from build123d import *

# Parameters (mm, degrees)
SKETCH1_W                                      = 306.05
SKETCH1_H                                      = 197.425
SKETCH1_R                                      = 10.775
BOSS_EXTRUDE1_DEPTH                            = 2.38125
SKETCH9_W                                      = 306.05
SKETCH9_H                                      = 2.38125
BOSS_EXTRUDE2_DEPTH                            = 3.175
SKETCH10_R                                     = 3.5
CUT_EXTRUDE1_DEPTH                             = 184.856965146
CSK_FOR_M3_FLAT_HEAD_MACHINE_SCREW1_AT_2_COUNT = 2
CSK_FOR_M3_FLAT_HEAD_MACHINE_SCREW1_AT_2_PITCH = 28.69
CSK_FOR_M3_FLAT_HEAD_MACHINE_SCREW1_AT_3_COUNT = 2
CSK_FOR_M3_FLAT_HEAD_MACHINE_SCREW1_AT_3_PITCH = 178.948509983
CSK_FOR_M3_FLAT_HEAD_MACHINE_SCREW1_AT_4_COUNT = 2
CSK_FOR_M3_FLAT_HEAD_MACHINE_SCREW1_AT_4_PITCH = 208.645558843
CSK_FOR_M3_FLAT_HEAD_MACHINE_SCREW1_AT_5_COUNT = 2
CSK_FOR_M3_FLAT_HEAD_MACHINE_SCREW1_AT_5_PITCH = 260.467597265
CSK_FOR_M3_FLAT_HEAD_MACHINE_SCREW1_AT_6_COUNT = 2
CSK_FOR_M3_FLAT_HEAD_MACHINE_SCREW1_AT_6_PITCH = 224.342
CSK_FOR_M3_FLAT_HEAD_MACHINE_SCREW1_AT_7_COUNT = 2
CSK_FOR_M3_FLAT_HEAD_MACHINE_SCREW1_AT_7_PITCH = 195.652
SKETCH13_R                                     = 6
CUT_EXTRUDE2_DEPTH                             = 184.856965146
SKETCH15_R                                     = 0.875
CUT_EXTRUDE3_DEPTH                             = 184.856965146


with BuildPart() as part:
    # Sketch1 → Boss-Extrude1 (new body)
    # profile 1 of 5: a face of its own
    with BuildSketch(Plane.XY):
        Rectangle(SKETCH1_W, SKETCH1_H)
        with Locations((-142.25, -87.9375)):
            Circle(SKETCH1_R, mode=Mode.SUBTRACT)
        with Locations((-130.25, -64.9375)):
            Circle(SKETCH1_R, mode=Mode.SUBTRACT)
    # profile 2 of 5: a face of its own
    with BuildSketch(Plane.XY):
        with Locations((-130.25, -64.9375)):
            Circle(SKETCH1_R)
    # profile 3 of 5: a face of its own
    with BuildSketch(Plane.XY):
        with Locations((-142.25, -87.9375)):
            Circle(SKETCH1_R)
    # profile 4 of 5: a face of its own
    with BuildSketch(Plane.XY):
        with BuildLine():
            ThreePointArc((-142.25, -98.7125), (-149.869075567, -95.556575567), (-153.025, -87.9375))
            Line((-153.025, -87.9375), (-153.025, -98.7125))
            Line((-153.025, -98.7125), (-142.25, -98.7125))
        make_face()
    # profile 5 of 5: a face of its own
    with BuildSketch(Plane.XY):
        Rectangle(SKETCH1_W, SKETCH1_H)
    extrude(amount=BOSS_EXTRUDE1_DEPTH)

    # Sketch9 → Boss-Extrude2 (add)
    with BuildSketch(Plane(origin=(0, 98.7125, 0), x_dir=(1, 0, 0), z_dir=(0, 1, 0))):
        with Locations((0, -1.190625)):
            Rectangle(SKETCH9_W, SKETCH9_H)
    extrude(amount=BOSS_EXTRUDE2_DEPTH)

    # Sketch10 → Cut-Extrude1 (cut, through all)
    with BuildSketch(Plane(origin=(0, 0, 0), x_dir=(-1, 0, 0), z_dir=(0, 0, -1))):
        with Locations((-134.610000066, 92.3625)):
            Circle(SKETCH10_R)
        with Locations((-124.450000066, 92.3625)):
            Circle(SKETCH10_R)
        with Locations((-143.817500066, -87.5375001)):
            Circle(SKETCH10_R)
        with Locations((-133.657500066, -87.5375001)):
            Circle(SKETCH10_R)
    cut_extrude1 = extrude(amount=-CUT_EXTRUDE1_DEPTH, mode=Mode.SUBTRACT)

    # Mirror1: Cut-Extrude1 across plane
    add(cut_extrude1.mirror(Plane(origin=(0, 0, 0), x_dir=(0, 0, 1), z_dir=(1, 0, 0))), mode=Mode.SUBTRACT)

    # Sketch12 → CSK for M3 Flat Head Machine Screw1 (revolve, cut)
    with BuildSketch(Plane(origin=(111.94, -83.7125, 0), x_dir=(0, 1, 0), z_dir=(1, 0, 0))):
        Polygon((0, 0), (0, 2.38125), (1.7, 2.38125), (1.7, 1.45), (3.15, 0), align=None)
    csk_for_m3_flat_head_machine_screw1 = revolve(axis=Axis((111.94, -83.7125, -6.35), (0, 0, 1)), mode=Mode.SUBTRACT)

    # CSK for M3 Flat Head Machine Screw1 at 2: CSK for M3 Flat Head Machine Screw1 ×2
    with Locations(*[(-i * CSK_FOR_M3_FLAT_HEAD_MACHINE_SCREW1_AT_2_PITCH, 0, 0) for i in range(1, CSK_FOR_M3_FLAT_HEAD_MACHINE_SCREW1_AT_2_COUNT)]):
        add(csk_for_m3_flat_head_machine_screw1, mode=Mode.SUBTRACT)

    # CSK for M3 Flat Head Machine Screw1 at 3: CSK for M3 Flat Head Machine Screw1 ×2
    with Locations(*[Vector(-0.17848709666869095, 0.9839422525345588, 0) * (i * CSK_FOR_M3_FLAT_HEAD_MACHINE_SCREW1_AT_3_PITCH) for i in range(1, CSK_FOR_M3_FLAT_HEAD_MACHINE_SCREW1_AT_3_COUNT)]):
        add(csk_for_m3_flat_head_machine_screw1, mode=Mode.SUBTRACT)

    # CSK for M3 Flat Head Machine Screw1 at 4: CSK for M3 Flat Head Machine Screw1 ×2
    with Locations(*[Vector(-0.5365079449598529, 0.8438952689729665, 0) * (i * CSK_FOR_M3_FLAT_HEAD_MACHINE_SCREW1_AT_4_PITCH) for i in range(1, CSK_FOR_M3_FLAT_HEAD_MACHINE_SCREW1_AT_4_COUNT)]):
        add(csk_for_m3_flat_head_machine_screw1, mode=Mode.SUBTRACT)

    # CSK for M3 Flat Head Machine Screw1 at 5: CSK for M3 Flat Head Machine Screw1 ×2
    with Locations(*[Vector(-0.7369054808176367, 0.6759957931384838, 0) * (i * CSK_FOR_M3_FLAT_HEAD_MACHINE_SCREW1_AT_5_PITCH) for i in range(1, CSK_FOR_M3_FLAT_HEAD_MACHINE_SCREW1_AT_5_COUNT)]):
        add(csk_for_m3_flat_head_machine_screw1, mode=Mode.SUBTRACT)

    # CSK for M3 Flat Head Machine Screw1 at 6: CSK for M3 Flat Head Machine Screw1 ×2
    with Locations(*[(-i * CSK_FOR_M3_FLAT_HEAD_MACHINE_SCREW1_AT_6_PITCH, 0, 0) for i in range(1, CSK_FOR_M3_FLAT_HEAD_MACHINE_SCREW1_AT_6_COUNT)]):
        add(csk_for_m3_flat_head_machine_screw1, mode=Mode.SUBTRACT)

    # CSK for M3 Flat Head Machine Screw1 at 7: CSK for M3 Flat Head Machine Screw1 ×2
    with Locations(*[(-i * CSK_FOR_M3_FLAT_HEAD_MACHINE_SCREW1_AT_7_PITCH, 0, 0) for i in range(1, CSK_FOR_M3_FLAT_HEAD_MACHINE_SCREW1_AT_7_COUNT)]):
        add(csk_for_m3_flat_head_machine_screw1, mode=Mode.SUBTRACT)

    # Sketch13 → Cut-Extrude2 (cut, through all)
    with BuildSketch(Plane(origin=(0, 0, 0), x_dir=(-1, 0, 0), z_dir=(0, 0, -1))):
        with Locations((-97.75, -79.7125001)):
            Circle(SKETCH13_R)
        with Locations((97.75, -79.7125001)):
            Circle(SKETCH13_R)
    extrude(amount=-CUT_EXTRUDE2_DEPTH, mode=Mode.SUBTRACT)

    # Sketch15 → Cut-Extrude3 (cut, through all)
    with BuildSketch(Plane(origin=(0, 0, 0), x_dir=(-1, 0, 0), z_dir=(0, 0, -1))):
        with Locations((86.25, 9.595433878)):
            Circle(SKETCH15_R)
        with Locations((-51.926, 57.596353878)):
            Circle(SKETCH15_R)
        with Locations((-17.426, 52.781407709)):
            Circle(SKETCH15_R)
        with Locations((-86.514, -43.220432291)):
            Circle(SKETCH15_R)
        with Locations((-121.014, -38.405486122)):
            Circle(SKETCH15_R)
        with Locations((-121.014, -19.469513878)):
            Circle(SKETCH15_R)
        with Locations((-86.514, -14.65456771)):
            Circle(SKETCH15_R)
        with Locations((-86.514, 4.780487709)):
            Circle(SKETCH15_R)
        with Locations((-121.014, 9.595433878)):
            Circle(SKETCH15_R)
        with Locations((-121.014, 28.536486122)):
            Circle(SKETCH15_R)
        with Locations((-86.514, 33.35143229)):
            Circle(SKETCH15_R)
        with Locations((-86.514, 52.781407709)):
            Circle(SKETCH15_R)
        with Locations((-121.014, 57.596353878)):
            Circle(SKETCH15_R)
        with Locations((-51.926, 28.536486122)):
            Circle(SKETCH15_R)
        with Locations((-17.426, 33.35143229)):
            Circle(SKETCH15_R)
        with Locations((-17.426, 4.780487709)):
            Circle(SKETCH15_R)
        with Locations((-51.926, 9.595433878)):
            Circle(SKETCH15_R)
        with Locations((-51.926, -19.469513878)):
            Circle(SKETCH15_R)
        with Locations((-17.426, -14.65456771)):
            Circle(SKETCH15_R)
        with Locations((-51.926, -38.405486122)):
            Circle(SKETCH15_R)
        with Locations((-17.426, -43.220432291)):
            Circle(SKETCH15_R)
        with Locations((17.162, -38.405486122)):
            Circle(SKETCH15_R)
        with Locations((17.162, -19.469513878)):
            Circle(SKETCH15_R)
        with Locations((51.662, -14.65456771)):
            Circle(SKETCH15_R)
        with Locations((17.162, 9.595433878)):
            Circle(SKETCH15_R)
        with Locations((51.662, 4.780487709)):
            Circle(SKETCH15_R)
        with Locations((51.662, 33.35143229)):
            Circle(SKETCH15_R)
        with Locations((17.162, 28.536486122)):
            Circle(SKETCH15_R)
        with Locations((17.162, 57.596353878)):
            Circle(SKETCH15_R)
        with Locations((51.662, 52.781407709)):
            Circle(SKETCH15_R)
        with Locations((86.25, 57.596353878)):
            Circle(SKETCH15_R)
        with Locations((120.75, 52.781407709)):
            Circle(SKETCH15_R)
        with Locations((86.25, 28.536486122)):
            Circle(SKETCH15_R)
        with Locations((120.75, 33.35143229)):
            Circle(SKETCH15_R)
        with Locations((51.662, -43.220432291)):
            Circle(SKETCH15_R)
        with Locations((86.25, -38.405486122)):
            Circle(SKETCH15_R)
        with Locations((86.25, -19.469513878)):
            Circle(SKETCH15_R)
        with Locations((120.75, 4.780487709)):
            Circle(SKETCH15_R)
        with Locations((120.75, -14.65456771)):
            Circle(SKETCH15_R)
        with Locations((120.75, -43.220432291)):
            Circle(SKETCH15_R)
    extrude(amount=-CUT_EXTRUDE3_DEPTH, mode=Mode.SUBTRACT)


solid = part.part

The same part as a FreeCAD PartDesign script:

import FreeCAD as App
import Part
import Sketcher

V = App.Vector
Q = App.Units.Quantity

doc = App.newDocument("Part")
body = doc.addObject("PartDesign::Body", "Body")

# Sketch on XY plane
sketch1 = doc.addObject("Sketcher::SketchObject", "Sketch")
body.addObject(sketch1)
sketch1.AttachmentSupport = (doc.XY_Plane, [""])
sketch1.MapMode = "FlatFace"
sketch1.addGeometry(Part.LineSegment(V(-153.025, -98.7125, 0), V(153.025, -98.7125, 0)), False)
sketch1.addGeometry(Part.LineSegment(V(153.025, -98.7125, 0), V(153.025, 98.7125, 0)), False)
sketch1.addGeometry(Part.LineSegment(V(153.025, 98.7125, 0), V(-153.025, 98.7125, 0)), False)
sketch1.addGeometry(Part.LineSegment(V(-153.025, 98.7125, 0), V(-153.025, -98.7125, 0)), False)
sketch1.addConstraint(Sketcher.Constraint("Coincident", 0, 2, 1, 1))
sketch1.addConstraint(Sketcher.Constraint("Coincident", 1, 2, 2, 1))
sketch1.addConstraint(Sketcher.Constraint("Coincident", 2, 2, 3, 1))
sketch1.addConstraint(Sketcher.Constraint("Coincident", 3, 2, 0, 1))
sketch1.addConstraint(Sketcher.Constraint("Horizontal", 0))
sketch1.addConstraint(Sketcher.Constraint("Vertical", 1))
sketch1.addConstraint(Sketcher.Constraint("Horizontal", 2))
sketch1.addConstraint(Sketcher.Constraint("Vertical", 3))
sketch1.addConstraint(Sketcher.Constraint("Symmetric", 0, 2, 2, 2, -1, 1))
sketch1.addConstraint(Sketcher.Constraint("DistanceX", 0, 1, 0, 2, Q("306.05 mm")))
sketch1.addConstraint(Sketcher.Constraint("DistanceY", 1, 1, 1, 2, Q("197.425 mm")))
pad1 = doc.addObject("PartDesign::Pad", "Pad")
body.addObject(pad1)
pad1.Profile = sketch1
pad1.Length = 2.38125

# Sketch on XZ plane
sketch2 = doc.addObject("Sketcher::SketchObject", "Sketch001")
body.addObject(sketch2)
sketch2.AttachmentSupport = (doc.XZ_Plane, [""])
sketch2.MapMode = "FlatFace"
sketch2.AttachmentOffset = App.Placement(V(0, 0, -98.7125), App.Rotation())
sketch2.addGeometry(Part.LineSegment(V(-153.025, 0, 0), V(-153.025, 2.38125, 0)), False)
sketch2.addGeometry(Part.LineSegment(V(-153.025, 2.38125, 0), V(153.025, 2.38125, 0)), False)
sketch2.addGeometry(Part.LineSegment(V(153.025, 2.38125, 0), V(153.025, 0, 0)), False)
sketch2.addGeometry(Part.LineSegment(V(153.025, 0, 0), V(-153.025, 0, 0)), False)
sketch2.addConstraint(Sketcher.Constraint("Coincident", 0, 2, 1, 1))
sketch2.addConstraint(Sketcher.Constraint("Coincident", 1, 2, 2, 1))
sketch2.addConstraint(Sketcher.Constraint("Coincident", 2, 2, 3, 1))
sketch2.addConstraint(Sketcher.Constraint("Coincident", 3, 2, 0, 1))
sketch2.addConstraint(Sketcher.Constraint("Vertical", 0))
sketch2.addConstraint(Sketcher.Constraint("Horizontal", 1))
sketch2.addConstraint(Sketcher.Constraint("Vertical", 2))
sketch2.addConstraint(Sketcher.Constraint("Horizontal", 3))
sketch2.addConstraint(Sketcher.Constraint("Symmetric", 2, 2, 3, 2, -1, 1))
sketch2.addConstraint(Sketcher.Constraint("DistanceX", 1, 1, 1, 2, Q("306.05 mm")))
sketch2.addConstraint(Sketcher.Constraint("DistanceY", 0, 1, 0, 2, Q("2.38125 mm")))
pad2 = doc.addObject("PartDesign::Pad", "Pad001")
body.addObject(pad2)
pad2.Profile = sketch2
pad2.Length = 3.175
pad2.Reversed = True

# Sketch on XY plane
sketch3 = doc.addObject("Sketcher::SketchObject", "Sketch002")
body.addObject(sketch3)
sketch3.AttachmentSupport = (doc.XY_Plane, [""])
sketch3.MapMode = "FlatFace"
sketch3.addGeometry(Part.Circle(V(134.61, 92.3625, 0), V(0, 0, 1), 3.5), False)
sketch3.addGeometry(Part.Circle(V(124.45, 92.3625, 0), V(0, 0, 1), 3.5), False)
sketch3.addGeometry(Part.Circle(V(143.8175, -87.5375, 0), V(0, 0, 1), 3.5), False)
sketch3.addGeometry(Part.Circle(V(133.6575, -87.5375, 0), V(0, 0, 1), 3.5), False)
sketch3.addConstraint(Sketcher.Constraint("Equal", 0, 1))
sketch3.addConstraint(Sketcher.Constraint("Equal", 1, 2))
sketch3.addConstraint(Sketcher.Constraint("Equal", 2, 3))
sketch3.addConstraint(Sketcher.Constraint("Horizontal", 0, 3, 1, 3))
sketch3.addConstraint(Sketcher.Constraint("Horizontal", 2, 3, 3, 3))
sketch3.addConstraint(Sketcher.Constraint("Diameter", 0, Q("7 mm")))
sketch3.addConstraint(Sketcher.Constraint("DistanceY", 2, 3, 0, 3, Q("179.9 mm")))
sketch3.addConstraint(Sketcher.Constraint("DistanceX", -1, 1, 0, 3, Q("134.61 mm")))
sketch3.addConstraint(Sketcher.Constraint("DistanceX", -1, 1, 1, 3, Q("124.45 mm")))
sketch3.addConstraint(Sketcher.Constraint("DistanceX", 3, 3, 2, 3, Q("10.16 mm")))
sketch3.addConstraint(Sketcher.Constraint("DistanceY", -1, 1, 0, 3, Q("92.3625 mm")))
sketch3.addConstraint(Sketcher.Constraint("DistanceX", -1, 1, 2, 3, Q("143.8175 mm")))
pocket1 = doc.addObject("PartDesign::Pocket", "Pocket")
body.addObject(pocket1)
pocket1.Profile = sketch3
pocket1.Type = "ThroughAll"
pocket1.Reversed = True
doc.recompute()

mirrored = doc.addObject("PartDesign::Mirrored", "Mirrored")
body.addObject(mirrored)
mirrored.Originals = [pocket1]
mirrored.MirrorPlane = (doc.YZ_Plane, [""])
body.Tip = mirrored

# Sketch on YZ plane
sketch4 = doc.addObject("Sketcher::SketchObject", "Sketch003")
body.addObject(sketch4)
sketch4.AttachmentSupport = (doc.YZ_Plane, [""])
sketch4.MapMode = "FlatFace"
sketch4.AttachmentOffset = App.Placement(V(0, 0, 111.94), App.Rotation())
sketch4.addGeometry(Part.LineSegment(V(-83.7125, 2.38125, 0), V(-83.7125, 0, 0)), False)
sketch4.addGeometry(Part.LineSegment(V(-83.7125, 0, 0), V(-80.5625, 0, 0)), False)
sketch4.addGeometry(Part.LineSegment(V(-80.5625, 0, 0), V(-82.0125, 1.45, 0)), False)
sketch4.addGeometry(Part.LineSegment(V(-82.0125, 1.45, 0), V(-82.0125, 2.38125, 0)), False)
sketch4.addGeometry(Part.LineSegment(V(-82.0125, 2.38125, 0), V(-83.7125, 2.38125, 0)), False)
sketch4.addGeometry(Part.LineSegment(V(-83.7125, 0, 0), V(-83.7125, 2.38125, 0)), True)  # axis
sketch4.addConstraint(Sketcher.Constraint("Coincident", 0, 2, 1, 1))
sketch4.addConstraint(Sketcher.Constraint("Coincident", 1, 2, 2, 1))
sketch4.addConstraint(Sketcher.Constraint("Coincident", 2, 2, 3, 1))
sketch4.addConstraint(Sketcher.Constraint("Coincident", 3, 2, 4, 1))
sketch4.addConstraint(Sketcher.Constraint("Coincident", 4, 2, 0, 1))
sketch4.addConstraint(Sketcher.Constraint("Vertical", 0))
sketch4.addConstraint(Sketcher.Constraint("Horizontal", 1))
sketch4.addConstraint(Sketcher.Constraint("Vertical", 3))
sketch4.addConstraint(Sketcher.Constraint("Horizontal", 4))
sketch4.addConstraint(Sketcher.Constraint("Vertical", 5))
sketch4.addConstraint(Sketcher.Constraint("Coincident", 5, 1, 0, 2))
sketch4.addConstraint(Sketcher.Constraint("PointOnObject", 0, 2, -1))
sketch4.addConstraint(Sketcher.Constraint("Horizontal", 3, 2, 5, 2))
sketch4.addConstraint(Sketcher.Constraint("Angle", 2, Q("135 deg")))
sketch4.addConstraint(Sketcher.Constraint("DistanceX", 4, 2, 4, 1, Q("1.7 mm")))
sketch4.addConstraint(Sketcher.Constraint("DistanceX", 1, 1, 1, 2, Q("3.15 mm")))
sketch4.addConstraint(Sketcher.Constraint("DistanceY", 0, 2, 0, 1, Q("2.38125 mm")))
sketch4.addConstraint(Sketcher.Constraint("DistanceX", 0, 2, -1, 1, Q("83.7125 mm")))
groove = doc.addObject("PartDesign::Groove", "Groove")
body.addObject(groove)
groove.Profile = sketch4
groove.ReferenceAxis = (sketch4, ["Axis0"])
groove.Angle = 360
doc.recompute()

linearpattern = doc.addObject("PartDesign::LinearPattern", "LinearPattern")
body.addObject(linearpattern)
linearpattern.Originals = [groove]
linearpattern.Direction = (doc.X_Axis, [""])
linearpattern.Mode = "offset"
linearpattern.Offset = 28.69
linearpattern.Occurrences = 2
linearpattern.Reversed = True
body.Tip = linearpattern
doc.recompute()

datumline = doc.addObject("PartDesign::Line", "DatumLine")
body.addObject(datumline)
datumline.Placement = App.Placement(V(0, 0, 0), App.Rotation(V(0, 0, 1), V(-0.178487097, 0.983942253, 0)))
linearpattern2 = doc.addObject("PartDesign::LinearPattern", "LinearPattern001")
body.addObject(linearpattern2)
linearpattern2.Originals = [groove]
linearpattern2.Direction = (datumline, [""])
linearpattern2.Mode = "offset"
linearpattern2.Offset = 178.94851
linearpattern2.Occurrences = 2
body.Tip = linearpattern2
doc.recompute()

datumline2 = doc.addObject("PartDesign::Line", "DatumLine001")
body.addObject(datumline2)
datumline2.Placement = App.Placement(V(0, 0, 0), App.Rotation(V(0, 0, 1), V(-0.536507945, 0.843895269, 0)))
linearpattern3 = doc.addObject("PartDesign::LinearPattern", "LinearPattern002")
body.addObject(linearpattern3)
linearpattern3.Originals = [groove]
linearpattern3.Direction = (datumline2, [""])
linearpattern3.Mode = "offset"
linearpattern3.Offset = 208.645559
linearpattern3.Occurrences = 2
body.Tip = linearpattern3
doc.recompute()

datumline3 = doc.addObject("PartDesign::Line", "DatumLine002")
body.addObject(datumline3)
datumline3.Placement = App.Placement(V(0, 0, 0), App.Rotation(V(0, 0, 1), V(-0.736905481, 0.675995793, 0)))
linearpattern4 = doc.addObject("PartDesign::LinearPattern", "LinearPattern003")
body.addObject(linearpattern4)
linearpattern4.Originals = [groove]
linearpattern4.Direction = (datumline3, [""])
linearpattern4.Mode = "offset"
linearpattern4.Offset = 260.467597
linearpattern4.Occurrences = 2
body.Tip = linearpattern4
doc.recompute()

linearpattern5 = doc.addObject("PartDesign::LinearPattern", "LinearPattern004")
body.addObject(linearpattern5)
linearpattern5.Originals = [groove]
linearpattern5.Direction = (doc.X_Axis, [""])
linearpattern5.Mode = "offset"
linearpattern5.Offset = 224.342
linearpattern5.Occurrences = 2
linearpattern5.Reversed = True
body.Tip = linearpattern5
doc.recompute()

linearpattern6 = doc.addObject("PartDesign::LinearPattern", "LinearPattern005")
body.addObject(linearpattern6)
linearpattern6.Originals = [groove]
linearpattern6.Direction = (doc.X_Axis, [""])
linearpattern6.Mode = "offset"
linearpattern6.Offset = 195.652
linearpattern6.Occurrences = 2
linearpattern6.Reversed = True
body.Tip = linearpattern6

# Sketch on XY plane
sketch5 = doc.addObject("Sketcher::SketchObject", "Sketch004")
body.addObject(sketch5)
sketch5.AttachmentSupport = (doc.XY_Plane, [""])
sketch5.MapMode = "FlatFace"
sketch5.addGeometry(Part.Circle(V(97.75, -79.7125, 0), V(0, 0, 1), 6), False)
sketch5.addGeometry(Part.Circle(V(-97.75, -79.7125, 0), V(0, 0, 1), 6), False)
sketch5.addConstraint(Sketcher.Constraint("Equal", 0, 1))
sketch5.addConstraint(Sketcher.Constraint("Symmetric", 0, 3, 1, 3, -2))
sketch5.addConstraint(Sketcher.Constraint("Diameter", 0, Q("12 mm")))
sketch5.addConstraint(Sketcher.Constraint("DistanceX", 1, 3, 0, 3, Q("195.5 mm")))
sketch5.addConstraint(Sketcher.Constraint("DistanceY", 0, 3, -1, 1, Q("79.7125 mm")))
pocket2 = doc.addObject("PartDesign::Pocket", "Pocket001")
body.addObject(pocket2)
pocket2.Profile = sketch5
pocket2.Type = "ThroughAll"
pocket2.Reversed = True

# Sketch on XY plane
sketch6 = doc.addObject("Sketcher::SketchObject", "Sketch005")
body.addObject(sketch6)
sketch6.AttachmentSupport = (doc.XY_Plane, [""])
sketch6.MapMode = "FlatFace"
sketch6.addGeometry(Part.Circle(V(-86.25, 9.595434, 0), V(0, 0, 1), 0.875), False)
sketch6.addGeometry(Part.Circle(V(51.926, 57.596354, 0), V(0, 0, 1), 0.875), False)
sketch6.addGeometry(Part.Circle(V(17.426, 52.781408, 0), V(0, 0, 1), 0.875), False)
sketch6.addGeometry(Part.Circle(V(86.514, -43.220432, 0), V(0, 0, 1), 0.875), False)
sketch6.addGeometry(Part.Circle(V(121.014, -38.405486, 0), V(0, 0, 1), 0.875), False)
sketch6.addGeometry(Part.Circle(V(121.014, -19.469514, 0), V(0, 0, 1), 0.875), False)
sketch6.addGeometry(Part.Circle(V(86.514, -14.654568, 0), V(0, 0, 1), 0.875), False)
sketch6.addGeometry(Part.Circle(V(86.514, 4.780488, 0), V(0, 0, 1), 0.875), False)
sketch6.addGeometry(Part.Circle(V(121.014, 9.595434, 0), V(0, 0, 1), 0.875), False)
sketch6.addGeometry(Part.Circle(V(121.014, 28.536486, 0), V(0, 0, 1), 0.875), False)
sketch6.addGeometry(Part.Circle(V(86.514, 33.351432, 0), V(0, 0, 1), 0.875), False)
sketch6.addGeometry(Part.Circle(V(86.514, 52.781408, 0), V(0, 0, 1), 0.875), False)
sketch6.addGeometry(Part.Circle(V(121.014, 57.596354, 0), V(0, 0, 1), 0.875), False)
sketch6.addGeometry(Part.Circle(V(51.926, 28.536486, 0), V(0, 0, 1), 0.875), False)
sketch6.addGeometry(Part.Circle(V(17.426, 33.351432, 0), V(0, 0, 1), 0.875), False)
sketch6.addGeometry(Part.Circle(V(17.426, 4.780488, 0), V(0, 0, 1), 0.875), False)
sketch6.addGeometry(Part.Circle(V(51.926, 9.595434, 0), V(0, 0, 1), 0.875), False)
sketch6.addGeometry(Part.Circle(V(51.926, -19.469514, 0), V(0, 0, 1), 0.875), False)
sketch6.addGeometry(Part.Circle(V(17.426, -14.654568, 0), V(0, 0, 1), 0.875), False)
sketch6.addGeometry(Part.Circle(V(51.926, -38.405486, 0), V(0, 0, 1), 0.875), False)
sketch6.addGeometry(Part.Circle(V(17.426, -43.220432, 0), V(0, 0, 1), 0.875), False)
sketch6.addGeometry(Part.Circle(V(-17.162, -38.405486, 0), V(0, 0, 1), 0.875), False)
sketch6.addGeometry(Part.Circle(V(-17.162, -19.469514, 0), V(0, 0, 1), 0.875), False)
sketch6.addGeometry(Part.Circle(V(-51.662, -14.654568, 0), V(0, 0, 1), 0.875), False)
sketch6.addGeometry(Part.Circle(V(-17.162, 9.595434, 0), V(0, 0, 1), 0.875), False)
sketch6.addGeometry(Part.Circle(V(-51.662, 4.780488, 0), V(0, 0, 1), 0.875), False)
sketch6.addGeometry(Part.Circle(V(-51.662, 33.351432, 0), V(0, 0, 1), 0.875), False)
sketch6.addGeometry(Part.Circle(V(-17.162, 28.536486, 0), V(0, 0, 1), 0.875), False)
sketch6.addGeometry(Part.Circle(V(-17.162, 57.596354, 0), V(0, 0, 1), 0.875), False)
sketch6.addGeometry(Part.Circle(V(-51.662, 52.781408, 0), V(0, 0, 1), 0.875), False)
sketch6.addGeometry(Part.Circle(V(-86.25, 57.596354, 0), V(0, 0, 1), 0.875), False)
sketch6.addGeometry(Part.Circle(V(-120.75, 52.781408, 0), V(0, 0, 1), 0.875), False)
sketch6.addGeometry(Part.Circle(V(-86.25, 28.536486, 0), V(0, 0, 1), 0.875), False)
sketch6.addGeometry(Part.Circle(V(-120.75, 33.351432, 0), V(0, 0, 1), 0.875), False)
sketch6.addGeometry(Part.Circle(V(-51.662, -43.220432, 0), V(0, 0, 1), 0.875), False)
sketch6.addGeometry(Part.Circle(V(-86.25, -38.405486, 0), V(0, 0, 1), 0.875), False)
sketch6.addGeometry(Part.Circle(V(-86.25, -19.469514, 0), V(0, 0, 1), 0.875), False)
sketch6.addGeometry(Part.Circle(V(-120.75, 4.780488, 0), V(0, 0, 1), 0.875), False)
sketch6.addGeometry(Part.Circle(V(-120.75, -14.654568, 0), V(0, 0, 1), 0.875), False)
sketch6.addGeometry(Part.Circle(V(-120.75, -43.220432, 0), V(0, 0, 1), 0.875), False)
sketch6.addConstraint(Sketcher.Constraint("Equal", 0, 1))
sketch6.addConstraint(Sketcher.Constraint("Equal", 1, 2))
sketch6.addConstraint(Sketcher.Constraint("Equal", 2, 3))
sketch6.addConstraint(Sketcher.Constraint("Equal", 3, 4))
sketch6.addConstraint(Sketcher.Constraint("Equal", 4, 5))
sketch6.addConstraint(Sketcher.Constraint("Equal", 5, 6))
sketch6.addConstraint(Sketcher.Constraint("Equal", 6, 7))
sketch6.addConstraint(Sketcher.Constraint("Equal", 7, 8))
sketch6.addConstraint(Sketcher.Constraint("Equal", 8, 9))
sketch6.addConstraint(Sketcher.Constraint("Equal", 9, 10))
sketch6.addConstraint(Sketcher.Constraint("Equal", 10, 11))
sketch6.addConstraint(Sketcher.Constraint("Equal", 11, 12))
sketch6.addConstraint(Sketcher.Constraint("Equal", 12, 13))
sketch6.addConstraint(Sketcher.Constraint("Equal", 13, 14))
sketch6.addConstraint(Sketcher.Constraint("Equal", 14, 15))
sketch6.addConstraint(Sketcher.Constraint("Equal", 15, 16))
sketch6.addConstraint(Sketcher.Constraint("Equal", 16, 17))
sketch6.addConstraint(Sketcher.Constraint("Equal", 17, 18))
sketch6.addConstraint(Sketcher.Constraint("Equal", 18, 19))
sketch6.addConstraint(Sketcher.Constraint("Equal", 19, 20))
sketch6.addConstraint(Sketcher.Constraint("Equal", 20, 21))
sketch6.addConstraint(Sketcher.Constraint("Equal", 21, 22))
sketch6.addConstraint(Sketcher.Constraint("Equal", 22, 23))
sketch6.addConstraint(Sketcher.Constraint("Equal", 23, 24))
sketch6.addConstraint(Sketcher.Constraint("Equal", 24, 25))
sketch6.addConstraint(Sketcher.Constraint("Equal", 25, 26))
sketch6.addConstraint(Sketcher.Constraint("Equal", 26, 27))
sketch6.addConstraint(Sketcher.Constraint("Equal", 27, 28))
sketch6.addConstraint(Sketcher.Constraint("Equal", 28, 29))
sketch6.addConstraint(Sketcher.Constraint("Equal", 29, 30))
sketch6.addConstraint(Sketcher.Constraint("Equal", 30, 31))
sketch6.addConstraint(Sketcher.Constraint("Equal", 31, 32))
sketch6.addConstraint(Sketcher.Constraint("Equal", 32, 33))
sketch6.addConstraint(Sketcher.Constraint("Equal", 33, 34))
sketch6.addConstraint(Sketcher.Constraint("Equal", 34, 35))
sketch6.addConstraint(Sketcher.Constraint("Equal", 35, 36))
sketch6.addConstraint(Sketcher.Constraint("Equal", 36, 37))
sketch6.addConstraint(Sketcher.Constraint("Equal", 37, 38))
sketch6.addConstraint(Sketcher.Constraint("Equal", 38, 39))
sketch6.addConstraint(Sketcher.Constraint("Horizontal", 0, 3, 8, 3))
sketch6.addConstraint(Sketcher.Constraint("Horizontal", 2, 3, 11, 3))
sketch6.addConstraint(Sketcher.Constraint("Horizontal", 1, 3, 12, 3))
sketch6.addConstraint(Sketcher.Constraint("Horizontal", 9, 3, 13, 3))
sketch6.addConstraint(Sketcher.Constraint("Horizontal", 10, 3, 14, 3))
sketch6.addConstraint(Sketcher.Constraint("Horizontal", 7, 3, 15, 3))
sketch6.addConstraint(Sketcher.Constraint("Horizontal", 8, 3, 16, 3))
sketch6.addConstraint(Sketcher.Constraint("Horizontal", 5, 3, 17, 3))
sketch6.addConstraint(Sketcher.Constraint("Horizontal", 6, 3, 18, 3))
sketch6.addConstraint(Sketcher.Constraint("Horizontal", 4, 3, 19, 3))
sketch6.addConstraint(Sketcher.Constraint("Horizontal", 3, 3, 20, 3))
sketch6.addConstraint(Sketcher.Constraint("Horizontal", 19, 3, 21, 3))
sketch6.addConstraint(Sketcher.Constraint("Horizontal", 17, 3, 22, 3))
sketch6.addConstraint(Sketcher.Constraint("Horizontal", 18, 3, 23, 3))
sketch6.addConstraint(Sketcher.Constraint("Horizontal", 16, 3, 24, 3))
sketch6.addConstraint(Sketcher.Constraint("Horizontal", 15, 3, 25, 3))
sketch6.addConstraint(Sketcher.Constraint("Horizontal", 14, 3, 26, 3))
sketch6.addConstraint(Sketcher.Constraint("Horizontal", 13, 3, 27, 3))
sketch6.addConstraint(Sketcher.Constraint("Horizontal", 12, 3, 28, 3))
sketch6.addConstraint(Sketcher.Constraint("Horizontal", 11, 3, 29, 3))
sketch6.addConstraint(Sketcher.Constraint("Horizontal", 28, 3, 30, 3))
sketch6.addConstraint(Sketcher.Constraint("Horizontal", 29, 3, 31, 3))
sketch6.addConstraint(Sketcher.Constraint("Horizontal", 27, 3, 32, 3))
sketch6.addConstraint(Sketcher.Constraint("Horizontal", 26, 3, 33, 3))
sketch6.addConstraint(Sketcher.Constraint("Horizontal", 20, 3, 34, 3))
sketch6.addConstraint(Sketcher.Constraint("Horizontal", 21, 3, 35, 3))
sketch6.addConstraint(Sketcher.Constraint("Horizontal", 22, 3, 36, 3))
sketch6.addConstraint(Sketcher.Constraint("Horizontal", 25, 3, 37, 3))
sketch6.addConstraint(Sketcher.Constraint("Horizontal", 23, 3, 38, 3))
sketch6.addConstraint(Sketcher.Constraint("Horizontal", 34, 3, 39, 3))
sketch6.addConstraint(Sketcher.Constraint("Vertical", 4, 3, 5, 3))
sketch6.addConstraint(Sketcher.Constraint("Vertical", 3, 3, 6, 3))
sketch6.addConstraint(Sketcher.Constraint("Vertical", 6, 3, 7, 3))
sketch6.addConstraint(Sketcher.Constraint("Vertical", 5, 3, 8, 3))
sketch6.addConstraint(Sketcher.Constraint("Vertical", 8, 3, 9, 3))
sketch6.addConstraint(Sketcher.Constraint("Vertical", 7, 3, 10, 3))
sketch6.addConstraint(Sketcher.Constraint("Vertical", 10, 3, 11, 3))
sketch6.addConstraint(Sketcher.Constraint("Vertical", 9, 3, 12, 3))
sketch6.addConstraint(Sketcher.Constraint("Vertical", 1, 3, 13, 3))
sketch6.addConstraint(Sketcher.Constraint("Vertical", 2, 3, 14, 3))
sketch6.addConstraint(Sketcher.Constraint("Vertical", 14, 3, 15, 3))
sketch6.addConstraint(Sketcher.Constraint("Vertical", 13, 3, 16, 3))
sketch6.addConstraint(Sketcher.Constraint("Vertical", 16, 3, 17, 3))
sketch6.addConstraint(Sketcher.Constraint("Vertical", 15, 3, 18, 3))
sketch6.addConstraint(Sketcher.Constraint("Vertical", 17, 3, 19, 3))
sketch6.addConstraint(Sketcher.Constraint("Vertical", 18, 3, 20, 3))
sketch6.addConstraint(Sketcher.Constraint("Vertical", 21, 3, 22, 3))
sketch6.addConstraint(Sketcher.Constraint("Vertical", 22, 3, 24, 3))
sketch6.addConstraint(Sketcher.Constraint("Vertical", 23, 3, 25, 3))
sketch6.addConstraint(Sketcher.Constraint("Vertical", 25, 3, 26, 3))
sketch6.addConstraint(Sketcher.Constraint("Vertical", 24, 3, 27, 3))
sketch6.addConstraint(Sketcher.Constraint("Vertical", 27, 3, 28, 3))
sketch6.addConstraint(Sketcher.Constraint("Vertical", 26, 3, 29, 3))
sketch6.addConstraint(Sketcher.Constraint("Vertical", 0, 3, 30, 3))
sketch6.addConstraint(Sketcher.Constraint("Vertical", 30, 3, 32, 3))
sketch6.addConstraint(Sketcher.Constraint("Vertical", 31, 3, 33, 3))
sketch6.addConstraint(Sketcher.Constraint("Vertical", 29, 3, 34, 3))
sketch6.addConstraint(Sketcher.Constraint("Vertical", 32, 3, 35, 3))
sketch6.addConstraint(Sketcher.Constraint("Vertical", 35, 3, 36, 3))
sketch6.addConstraint(Sketcher.Constraint("Vertical", 33, 3, 37, 3))
sketch6.addConstraint(Sketcher.Constraint("Vertical", 37, 3, 38, 3))
sketch6.addConstraint(Sketcher.Constraint("Vertical", 38, 3, 39, 3))
sketch6.addConstraint(Sketcher.Constraint("Diameter", 0, Q("1.75 mm")))
sketch6.addConstraint(Sketcher.Constraint("DistanceX", 2, 3, 1, 3, Q("34.5 mm")))
sketch6.addConstraint(Sketcher.Constraint("DistanceX", 3, 3, 4, 3, Q("34.5 mm")))
sketch6.addConstraint(Sketcher.Constraint("DistanceX", 23, 3, 22, 3, Q("34.5 mm")))
sketch6.addConstraint(Sketcher.Constraint("DistanceX", 31, 3, 30, 3, Q("34.5 mm")))
sketch6.addConstraint(Sketcher.Constraint("DistanceX", 0, 3, -1, 1, Q("86.25 mm")))
sketch6.addConstraint(Sketcher.Constraint("DistanceY", 5, 3, 7, 3, Q("24.250002 mm")))
sketch6.addConstraint(Sketcher.Constraint("DistanceY", 6, 3, 8, 3, Q("24.250002 mm")))
sketch6.addConstraint(Sketcher.Constraint("DistanceX", -1, 1, 1, 3, Q("51.926 mm")))
sketch6.addConstraint(Sketcher.Constraint("DistanceX", -1, 1, 3, 3, Q("86.514 mm")))
sketch6.addConstraint(Sketcher.Constraint("DistanceX", 21, 3, -1, 1, Q("17.162 mm")))
sketch6.addConstraint(Sketcher.Constraint("DistanceY", 7, 3, 9, 3, Q("23.755998 mm")))
sketch6.addConstraint(Sketcher.Constraint("DistanceY", 8, 3, 10, 3, Q("23.755998 mm")))
sketch6.addConstraint(Sketcher.Constraint("DistanceY", 0, 3, 1, 3, Q("48.00092 mm")))
sketch6.addConstraint(Sketcher.Constraint("DistanceY", 3, 3, 2, 3, Q("96.00184 mm")))
sketch6.addConstraint(Sketcher.Constraint("DistanceY", 4, 3, 1, 3, Q("96.00184 mm")))
sketch6.addConstraint(Sketcher.Constraint("DistanceY", 3, 3, 5, 3, Q("23.750918 mm")))
sketch6.addConstraint(Sketcher.Constraint("DistanceY", -1, 1, 0, 3, Q("9.595434 mm")))
sketch6.addConstraint(Sketcher.Constraint("DistanceY", -1, 1, 2, 3, Q("52.781408 mm")))
pocket3 = doc.addObject("PartDesign::Pocket", "Pocket002")
body.addObject(pocket3)
pocket3.Profile = sketch6
pocket3.Type = "ThroughAll"
pocket3.Reversed = True

doc.recompute()
